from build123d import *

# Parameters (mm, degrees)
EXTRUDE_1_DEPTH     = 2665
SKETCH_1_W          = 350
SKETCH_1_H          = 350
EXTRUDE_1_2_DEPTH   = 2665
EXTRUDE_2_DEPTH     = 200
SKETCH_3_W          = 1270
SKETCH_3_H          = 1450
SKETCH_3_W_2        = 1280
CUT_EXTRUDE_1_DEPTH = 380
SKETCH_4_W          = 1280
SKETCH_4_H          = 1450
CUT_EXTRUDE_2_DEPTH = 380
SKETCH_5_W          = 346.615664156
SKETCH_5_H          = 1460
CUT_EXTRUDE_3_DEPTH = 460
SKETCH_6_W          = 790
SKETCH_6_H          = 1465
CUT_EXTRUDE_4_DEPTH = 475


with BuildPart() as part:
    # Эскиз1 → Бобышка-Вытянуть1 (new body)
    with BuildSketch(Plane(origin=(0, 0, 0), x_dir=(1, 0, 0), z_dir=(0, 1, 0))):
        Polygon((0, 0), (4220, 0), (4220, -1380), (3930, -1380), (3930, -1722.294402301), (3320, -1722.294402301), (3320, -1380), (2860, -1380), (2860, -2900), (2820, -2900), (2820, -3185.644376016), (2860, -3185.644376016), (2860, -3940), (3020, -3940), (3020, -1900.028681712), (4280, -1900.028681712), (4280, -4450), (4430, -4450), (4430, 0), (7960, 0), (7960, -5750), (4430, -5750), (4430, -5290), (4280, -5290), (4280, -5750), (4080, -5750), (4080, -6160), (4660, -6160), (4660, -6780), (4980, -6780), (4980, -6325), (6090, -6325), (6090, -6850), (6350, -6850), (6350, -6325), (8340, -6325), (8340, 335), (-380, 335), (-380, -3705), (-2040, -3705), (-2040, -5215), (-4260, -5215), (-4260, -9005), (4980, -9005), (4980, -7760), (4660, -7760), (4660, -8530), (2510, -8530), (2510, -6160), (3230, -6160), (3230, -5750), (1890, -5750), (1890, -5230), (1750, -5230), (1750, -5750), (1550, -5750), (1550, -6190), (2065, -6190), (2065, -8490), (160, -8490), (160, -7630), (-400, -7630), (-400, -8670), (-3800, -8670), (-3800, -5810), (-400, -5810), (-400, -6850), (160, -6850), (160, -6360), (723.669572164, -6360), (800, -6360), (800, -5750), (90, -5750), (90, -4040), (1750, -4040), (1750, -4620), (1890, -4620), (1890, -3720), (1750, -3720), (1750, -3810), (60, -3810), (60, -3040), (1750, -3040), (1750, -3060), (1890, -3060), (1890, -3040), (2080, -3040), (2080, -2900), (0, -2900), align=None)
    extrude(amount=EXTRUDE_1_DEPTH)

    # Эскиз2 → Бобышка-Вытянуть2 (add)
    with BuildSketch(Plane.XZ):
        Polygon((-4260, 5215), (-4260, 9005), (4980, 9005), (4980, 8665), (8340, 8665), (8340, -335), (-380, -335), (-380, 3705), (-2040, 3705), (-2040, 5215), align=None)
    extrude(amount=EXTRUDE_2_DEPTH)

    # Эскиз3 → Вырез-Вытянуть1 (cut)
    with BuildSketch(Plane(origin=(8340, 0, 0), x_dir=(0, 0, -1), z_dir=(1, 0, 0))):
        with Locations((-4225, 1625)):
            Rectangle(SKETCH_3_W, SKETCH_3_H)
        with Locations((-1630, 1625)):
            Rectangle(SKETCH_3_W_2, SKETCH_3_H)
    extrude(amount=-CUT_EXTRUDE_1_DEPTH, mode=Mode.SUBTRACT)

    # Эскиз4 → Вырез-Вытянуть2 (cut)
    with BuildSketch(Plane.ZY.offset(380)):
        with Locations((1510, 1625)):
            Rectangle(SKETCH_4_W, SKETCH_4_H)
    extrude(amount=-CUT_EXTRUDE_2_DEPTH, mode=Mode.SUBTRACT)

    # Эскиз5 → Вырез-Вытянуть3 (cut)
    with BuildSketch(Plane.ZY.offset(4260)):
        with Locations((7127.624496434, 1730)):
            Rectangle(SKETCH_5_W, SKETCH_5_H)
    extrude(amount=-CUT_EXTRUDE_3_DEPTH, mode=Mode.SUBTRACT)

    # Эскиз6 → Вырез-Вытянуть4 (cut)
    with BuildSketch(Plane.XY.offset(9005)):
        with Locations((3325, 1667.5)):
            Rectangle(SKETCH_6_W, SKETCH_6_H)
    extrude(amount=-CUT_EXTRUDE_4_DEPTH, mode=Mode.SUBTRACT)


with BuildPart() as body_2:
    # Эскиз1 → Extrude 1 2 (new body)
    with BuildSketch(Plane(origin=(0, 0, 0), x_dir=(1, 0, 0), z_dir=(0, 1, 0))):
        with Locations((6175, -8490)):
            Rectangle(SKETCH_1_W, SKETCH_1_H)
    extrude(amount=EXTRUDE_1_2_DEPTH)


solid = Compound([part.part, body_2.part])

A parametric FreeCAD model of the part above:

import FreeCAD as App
import Part
import Sketcher

V = App.Vector
Q = App.Units.Quantity


def add_polygon(sketch, points):
    """Adds a closed chain of lines whose ends are joined by coincident constraints."""
    first, n = sketch.GeometryCount, len(points)
    for a, b in zip(points, points[1:] + points[:1]):
        sketch.addGeometry(Part.LineSegment(App.Vector(*a, 0), App.Vector(*b, 0)), False)
    for i in range(n):
        sketch.addConstraint(Sketcher.Constraint("Coincident", first + i, 2, first + (i + 1) % n, 1))

doc = App.newDocument("Part")
body = doc.addObject("PartDesign::Body", "Body")

sketch1 = body.newObject("Sketcher::SketchObject", "Sketch")
sketch1.AttachmentSupport = (doc.getObject("XZ_Plane"), [""])
sketch1.MapMode = "FlatFace"
add_polygon(sketch1, [(0, 0), (4220, 0), (4220, 1380), (3930, 1380), (3930, 1722), (3320, 1722), (3320, 1380), (2860, 1380), (2860, 2900), (2820, 2900), (2820, 3186), (2860, 3186), (2860, 3940), (3020, 3940), (3020, 1900), (4280, 1900), (4280, 4450), (4430, 4450), (4430, 0), (7960, 0), (7960, 5750), (4430, 5750), (4430, 5290), (4280, 5290), (4280, 5750), (4080, 5750), (4080, 6160), (4660, 6160), (4660, 6780), (4980, 6780), (4980, 6325), (6090, 6325), (6090, 6850), (6350, 6850), (6350, 6325), (8340, 6325), (8340, -335), (-380, -335), (-380, 3705), (-2040, 3705), (-2040, 5215), (-4260, 5215), (-4260, 9005), (4980, 9005), (4980, 7760), (4660, 7760), (4660, 8530), (2510, 8530), (2510, 6160), (3230, 6160), (3230, 5750), (1890, 5750), (1890, 5230), (1750, 5230), (1750, 5750), (1550, 5750), (1550, 6190), (2065, 6190), (2065, 8490), (160, 8490), (160, 7630), (-400, 7630), (-400, 8670), (-3800, 8670), (-3800, 5810), (-400, 5810), (-400, 6850), (160, 6850), (160, 6360), (800, 6360), (800, 5750), (90, 5750), (90, 4040), (1750, 4040), (1750, 4620), (1890, 4620), (1890, 3720), (1750, 3720), (1750, 3810), (60, 3810), (60, 3040), (1750, 3040), (1750, 3060), (1890, 3060), (1890, 3040), (2080, 3040), (2080, 2900), (0, 2900)])
sketch1.addConstraint([
    Sketcher.Constraint("Horizontal", 0),
    Sketcher.Constraint("Vertical", 1),
    Sketcher.Constraint("Horizontal", 2),
    Sketcher.Constraint("Vertical", 3),
    Sketcher.Constraint("Horizontal", 4),
    Sketcher.Constraint("Vertical", 5),
    Sketcher.Constraint("Horizontal", 6),
    Sketcher.Constraint("Vertical", 7),
    Sketcher.Constraint("Horizontal", 8),
    Sketcher.Constraint("Vertical", 9),
    Sketcher.Constraint("Horizontal", 10),
    Sketcher.Constraint("Vertical", 11),
    Sketcher.Constraint("Horizontal", 12),
    Sketcher.Constraint("Vertical", 13),
    Sketcher.Constraint("Horizontal", 14),
    Sketcher.Constraint("Vertical", 15),
    Sketcher.Constraint("Horizontal", 16),
    Sketcher.Constraint("Vertical", 17),
    Sketcher.Constraint("Horizontal", 18),
    Sketcher.Constraint("Vertical", 19),
    Sketcher.Constraint("Horizontal", 20),
    Sketcher.Constraint("Vertical", 21),
    Sketcher.Constraint("Horizontal", 22),
    Sketcher.Constraint("Vertical", 23),
    Sketcher.Constraint("Horizontal", 24),
    Sketcher.Constraint("Vertical", 25),
    Sketcher.Constraint("Horizontal", 26),
    Sketcher.Constraint("Vertical", 27),
    Sketcher.Constraint("Horizontal", 28),
    Sketcher.Constraint("Vertical", 29),
    Sketcher.Constraint("Horizontal", 30),
    Sketcher.Constraint("Vertical", 31),
    Sketcher.Constraint("Horizontal", 32),
    Sketcher.Constraint("Vertical", 33),
    Sketcher.Constraint("Horizontal", 34),
    Sketcher.Constraint("Vertical", 35),
    Sketcher.Constraint("Horizontal", 36),
    Sketcher.Constraint("Vertical", 37),
    Sketcher.Constraint("Horizontal", 38),
    Sketcher.Constraint("Vertical", 39),
    Sketcher.Constraint("Horizontal", 40),
    Sketcher.Constraint("Vertical", 41),
    Sketcher.Constraint("Horizontal", 42),
    Sketcher.Constraint("Vertical", 43),
    Sketcher.Constraint("Horizontal", 44),
    Sketcher.Constraint("Vertical", 45),
    Sketcher.Constraint("Horizontal", 46),
    Sketcher.Constraint("Vertical", 47),
    Sketcher.Constraint("Horizontal", 48),
    Sketcher.Constraint("Vertical", 49),
    Sketcher.Constraint("Horizontal", 50),
    Sketcher.Constraint("Vertical", 51),
    Sketcher.Constraint("Horizontal", 52),
    Sketcher.Constraint("Vertical", 53),
    Sketcher.Constraint("Horizontal", 54),
    Sketcher.Constraint("Vertical", 55),
    Sketcher.Constraint("Horizontal", 56),
    Sketcher.Constraint("Vertical", 57),
    Sketcher.Constraint("Horizontal", 58),
    Sketcher.Constraint("Vertical", 59),
    Sketcher.Constraint("Horizontal", 60),
    Sketcher.Constraint("Vertical", 61),
    Sketcher.Constraint("Horizontal", 62),
    Sketcher.Constraint("Vertical", 63),
    Sketcher.Constraint("Horizontal", 64),
    Sketcher.Constraint("Vertical", 65),
    Sketcher.Constraint("Horizontal", 66),
    Sketcher.Constraint("Vertical", 67),
    Sketcher.Constraint("Horizontal", 68),
    Sketcher.Constraint("Vertical", 69),
    Sketcher.Constraint("Horizontal", 70),
    Sketcher.Constraint("Vertical", 71),
    Sketcher.Constraint("Horizontal", 72),
    Sketcher.Constraint("Vertical", 73),
    Sketcher.Constraint("Horizontal", 74),
    Sketcher.Constraint("Vertical", 75),
    Sketcher.Constraint("Horizontal", 76),
    Sketcher.Constraint("Vertical", 77),
    Sketcher.Constraint("Horizontal", 78),
    Sketcher.Constraint("Vertical", 79),
    Sketcher.Constraint("Horizontal", 80),
    Sketcher.Constraint("Vertical", 81),
    Sketcher.Constraint("Horizontal", 82),
    Sketcher.Constraint("Vertical", 83),
    Sketcher.Constraint("Horizontal", 84),
    Sketcher.Constraint("Vertical", 85),
    Sketcher.Constraint("Horizontal", 86),
    Sketcher.Constraint("Vertical", 87),
    Sketcher.Constraint("Coincident", 87, 2, -1, 1),
    Sketcher.Constraint("PointOnObject", 17, 2, -1),
    Sketcher.Constraint("Horizontal", 2, 2, 5, 2),
    Sketcher.Constraint("Horizontal", 20, 2, 23, 2),
    Sketcher.Constraint("Horizontal", 30, 2, 33, 2),
    Sketcher.Constraint("Horizontal", 26, 2, 47, 2),
    Sketcher.Constraint("Horizontal", 24, 2, 49, 2),
    Sketcher.Constraint("Horizontal", 50, 2, 53, 2),
    Sketcher.Constraint("Horizontal", 32, 2, 65, 2),
    Sketcher.Constraint("Horizontal", 54, 2, 69, 2),
    Sketcher.Constraint("Horizontal", 80, 2, 83, 2),
    Sketcher.Constraint("Horizontal", 8, 2, 85, 2),
    Sketcher.Constraint("Vertical", 7, 2, 10, 2),
    Sketcher.Constraint("Vertical", 17, 2, 20, 2),
    Sketcher.Constraint("Vertical", 15, 2, 22, 2),
    Sketcher.Constraint("Vertical", 29, 2, 42, 2),
    Sketcher.Constraint("Vertical", 27, 2, 44, 2),
    Sketcher.Constraint("Vertical", 61, 2, 64, 2),
    Sketcher.Constraint("Vertical", 59, 2, 66, 2),
    Sketcher.Constraint("Vertical", 53, 2, 72, 2),
    Sketcher.Constraint("Vertical", 51, 2, 74, 2),
    Sketcher.Constraint("Vertical", 73, 2, 76, 2),
    Sketcher.Constraint("Vertical", 77, 2, 80, 2),
    Sketcher.Constraint("Vertical", 75, 2, 82, 2),
    Sketcher.Constraint("Equal", 24, 54),
    Sketcher.Constraint("Equal", 38, 72),
    Sketcher.Constraint("Equal", 6, 21),
    Sketcher.Constraint("Equal", 61, 65),
    Sketcher.Constraint("Equal", 4, 69),
    Sketcher.Constraint("Equal", 26, 73),
    Sketcher.Constraint("Equal", 45, 79),
    Sketcher.Constraint("Equal", 82, 85),
    Sketcher.Constraint("DistanceX", 0, 1, 0, 2, Q("4220 mm")),
    Sketcher.Constraint("DistanceX", 2, 2, 2, 1, Q("290 mm")),
    Sketcher.Constraint("DistanceX", 4, 2, 4, 1, Q("610 mm")),
    Sketcher.Constraint("DistanceX", 6, 2, 6, 1, Q("460 mm")),
    Sketcher.Constraint("DistanceX", 8, 2, 8, 1, Q("40 mm")),
    Sketcher.Constraint("DistanceX", 12, 1, 12, 2, Q("160 mm")),
    Sketcher.Constraint("DistanceX", 14, 1, 14, 2, Q("1260 mm")),
    Sketcher.Constraint("DistanceX", 16, 1, 16, 2, Q("150 mm")),
    Sketcher.Constraint("DistanceX", 18, 1, 18, 2, Q("3530 mm")),
    Sketcher.Constraint("DistanceX", 24, 2, 24, 1, Q("200 mm")),
    Sketcher.Constraint("DistanceX", 26, 1, 26, 2, Q("580 mm")),
    Sketcher.Constraint("DistanceX", 28, 1, 28, 2, Q("320 mm")),
    Sketcher.Constraint("DistanceX", 30, 1, 30, 2, Q("1110 mm")),
    Sketcher.Constraint("DistanceX", 32, 1, 32, 2, Q("260 mm")),
    Sketcher.Constraint("DistanceX", 34, 1, 34, 2, Q("1990 mm")),
    Sketcher.Constraint("DistanceX", 36, 2, 36, 1, Q("8720 mm")),
    Sketcher.Constraint("DistanceX", 38, 2, 38, 1, Q("1660 mm")),
    Sketcher.Constraint("DistanceX", 40, 2, 40, 1, Q("2220 mm")),
    Sketcher.Constraint("DistanceX", 46, 2, 46, 1, Q("2150 mm")),
    Sketcher.Constraint("DistanceX", 48, 1, 48, 2, Q("720 mm")),
    Sketcher.Constraint("DistanceX", 50, 2, 50, 1, Q("1340 mm")),
    Sketcher.Constraint("DistanceX", 52, 2, 52, 1, Q("140 mm")),
    Sketcher.Constraint("DistanceX", 56, 1, 56, 2, Q("515 mm")),
    Sketcher.Constraint("DistanceX", 58, 2, 58, 1, Q("1905 mm")),
    Sketcher.Constraint("DistanceX", 60, 2, 60, 1, Q("560 mm")),
    Sketcher.Constraint("DistanceX", 62, 2, 62, 1, Q("3400 mm")),
    Sketcher.Constraint("DistanceX", 68, 1, 68, 2, Q("640 mm")),
    Sketcher.Constraint("DistanceX", 78, 2, 78, 1, Q("1690 mm")),
    Sketcher.Constraint("DistanceX", 84, 1, 84, 2, Q("190 mm")),
    Sketcher.Constraint("DistanceY", 1, 1, 1, 2, Q("1380 mm")),
    Sketcher.Constraint("DistanceY", 7, 1, 7, 2, Q("1520 mm")),
    Sketcher.Constraint("DistanceY", 17, 2, 17, 1, Q("4450 mm")),
    Sketcher.Constraint("DistanceY", 19, 1, 19, 2, Q("5750 mm")),
    Sketcher.Constraint("DistanceY", 25, 1, 25, 2, Q("410 mm")),
    Sketcher.Constraint("DistanceY", 27, 1, 27, 2, Q("620 mm")),
    Sketcher.Constraint("DistanceY", 29, 2, 29, 1, Q("455 mm")),
    Sketcher.Constraint("DistanceY", 31, 1, 31, 2, Q("525 mm")),
    Sketcher.Constraint("DistanceY", 35, 2, 35, 1, Q("6660 mm")),
    Sketcher.Constraint("DistanceY", 37, 1, 37, 2, Q("4040 mm")),
    Sketcher.Constraint("DistanceY", 39, 1, 39, 2, Q("1510 mm")),
    Sketcher.Constraint("DistanceY", 41, 1, 41, 2, Q("3790 mm")),
    Sketcher.Constraint("DistanceY", 43, 2, 43, 1, Q("1245 mm")),
    Sketcher.Constraint("DistanceY", 45, 1, 45, 2, Q("770 mm")),
    Sketcher.Constraint("DistanceY", 51, 2, 51, 1, Q("520 mm")),
    Sketcher.Constraint("DistanceY", 55, 1, 55, 2, Q("440 mm")),
    Sketcher.Constraint("DistanceY", 57, 1, 57, 2, Q("2300 mm")),
    Sketcher.Constraint("DistanceY", 59, 2, 59, 1, Q("860 mm")),
    Sketcher.Constraint("DistanceY", 61, 1, 61, 2, Q("1040 mm")),
    Sketcher.Constraint("DistanceY", 71, 2, 71, 1, Q("1710 mm")),
    Sketcher.Constraint("DistanceY", 75, 2, 75, 1, Q("900 mm")),
    Sketcher.Constraint("DistanceY", 81, 1, 81, 2, Q("20 mm")),
    Sketcher.Constraint("DistanceY", -1, 1, 11, 2, Q("3940 mm")),
    Sketcher.Constraint("DistanceY", 13, 2, 13, 1, Q("2039.971318 mm")),
    Sketcher.Constraint("DistanceY", 3, 1, 3, 2, Q("342.294402 mm")),
    Sketcher.Constraint("DistanceY", 9, 1, 9, 2, Q("285.644376 mm")),
])
pad1 = body.newObject("PartDesign::Pad", "Pad")
pad1.Profile = sketch1
pad1.Length = 2665
pad1.Reversed = True

sketch2 = body.newObject("Sketcher::SketchObject", "Sketch001")
sketch2.AttachmentSupport = (doc.getObject("XZ_Plane"), [""])
sketch2.MapMode = "FlatFace"
add_polygon(sketch2, [(-4260, 9005), (-4260, 5215), (-2040, 5215), (-2040, 3705), (-380, 3705), (-380, -335), (8340, -335), (8340, 8665), (4980, 8665), (4980, 9005)])
sketch2.addConstraint([
    Sketcher.Constraint("Vertical", 0),
    Sketcher.Constraint("Horizontal", 1),
    Sketcher.Constraint("Vertical", 2),
    Sketcher.Constraint("Horizontal", 3),
    Sketcher.Constraint("Vertical", 4),
    Sketcher.Constraint("Horizontal", 5),
    Sketcher.Constraint("Vertical", 6),
    Sketcher.Constraint("Horizontal", 7),
    Sketcher.Constraint("Vertical", 8),
    Sketcher.Constraint("Horizontal", 9),
    Sketcher.Constraint("DistanceX", 1, 1, 1, 2, Q("2220 mm")),
    Sketcher.Constraint("DistanceX", 3, 1, 3, 2, Q("1660 mm")),
    Sketcher.Constraint("DistanceX", 5, 1, 5, 2, Q("8720 mm")),
    Sketcher.Constraint("DistanceX", 7, 2, 7, 1, Q("3360 mm")),
    Sketcher.Constraint("DistanceY", 0, 2, 0, 1, Q("3790 mm")),
    Sketcher.Constraint("DistanceY", 2, 2, 2, 1, Q("1510 mm")),
    Sketcher.Constraint("DistanceY", 4, 2, 4, 1, Q("4040 mm")),
    Sketcher.Constraint("DistanceY", 6, 1, 6, 2, Q("9000 mm")),
    Sketcher.Constraint("DistanceX", 0, 2, -1, 1, Q("4260 mm")),
    Sketcher.Constraint("DistanceY", -1, 1, 0, 2, Q("5215 mm")),
])
pad2 = body.newObject("PartDesign::Pad", "Pad001")
pad2.Profile = sketch2
pad2.Length = 200

sketch3 = body.newObject("Sketcher::SketchObject", "Sketch002")
sketch3.AttachmentSupport = (doc.getObject("YZ_Plane"), [""])
sketch3.MapMode = "FlatFace"
sketch3.AttachmentOffset = App.Placement(V(0, 0, 8340), App.Rotation())
add_polygon(sketch3, [(2350, 4860), (900, 4860), (900, 3590), (2350, 3590)])
add_polygon(sketch3, [(2350, 2270), (900, 2270), (900, 990), (2350, 990)])
sketch3.addConstraint([
    Sketcher.Constraint("Horizontal", 0),
    Sketcher.Constraint("Vertical", 1),
    Sketcher.Constraint("Horizontal", 2),
    Sketcher.Constraint("Vertical", 3),
    Sketcher.Constraint("Horizontal", 4),
    Sketcher.Constraint("Vertical", 5),
    Sketcher.Constraint("Horizontal", 6),
    Sketcher.Constraint("Vertical", 7),
    Sketcher.Constraint("Vertical", 1, 2, 4, 2),
    Sketcher.Constraint("Vertical", 3, 2, 6, 2),
    Sketcher.Constraint("DistanceX", 0, 2, 0, 1, Q("1450 mm")),
    Sketcher.Constraint("DistanceY", 1, 2, 1, 1, Q("1270 mm")),
    Sketcher.Constraint("DistanceY", 5, 2, 5, 1, Q("1280 mm")),
    Sketcher.Constraint("DistanceX", -1, 1, 0, 2, Q("900 mm")),
    Sketcher.Constraint("DistanceY", -1, 1, 0, 2, Q("4860 mm")),
    Sketcher.Constraint("DistanceY", -1, 1, 4, 2, Q("2270 mm")),
])
pocket1 = body.newObject("PartDesign::Pocket", "Pocket")
pocket1.Profile = sketch3
pocket1.Length = 380

sketch4 = body.newObject("Sketcher::SketchObject", "Sketch003")
sketch4.AttachmentSupport = (doc.getObject("YZ_Plane"), [""])
sketch4.MapMode = "FlatFace"
sketch4.AttachmentOffset = App.Placement(V(0, 0, -380), App.Rotation())
add_polygon(sketch4, [(2350, 870), (900, 870), (900, 2150), (2350, 2150)])
sketch4.addConstraint([
    Sketcher.Constraint("Horizontal", 0),
    Sketcher.Constraint("Vertical", 1),
    Sketcher.Constraint("Horizontal", 2),
    Sketcher.Constraint("Vertical", 3),
    Sketcher.Constraint("DistanceX", 0, 2, 0, 1, Q("1450 mm")),
    Sketcher.Constraint("DistanceY", 1, 1, 1, 2, Q("1280 mm")),
    Sketcher.Constraint("DistanceX", -1, 1, 0, 2, Q("900 mm")),
    Sketcher.Constraint("DistanceY", -1, 1, 0, 2, Q("870 mm")),
])
pocket2 = body.newObject("PartDesign::Pocket", "Pocket001")
pocket2.Profile = sketch4
pocket2.Length = 380
pocket2.Reversed = True

sketch5 = body.newObject("Sketcher::SketchObject", "Sketch004")
sketch5.AttachmentSupport = (doc.getObject("YZ_Plane"), [""])
sketch5.MapMode = "FlatFace"
sketch5.AttachmentOffset = App.Placement(V(0, 0, -4260), App.Rotation())
add_polygon(sketch5, [(2460, 6954), (1000, 6954), (1000, 7301), (2460, 7301)])
sketch5.addConstraint([
    Sketcher.Constraint("Horizontal", 0),
    Sketcher.Constraint("Vertical", 1),
    Sketcher.Constraint("Horizontal", 2),
    Sketcher.Constraint("Vertical", 3),
    Sketcher.Constraint("DistanceX", 0, 2, 0, 1, Q("1460 mm")),
    Sketcher.Constraint("DistanceX", -1, 1, 0, 2, Q("1000 mm")),
    Sketcher.Constraint("DistanceY", 1, 1, 1, 2, Q("346.615664 mm")),
    Sketcher.Constraint("DistanceY", -1, 1, 1, 2, Q("7300.932329 mm")),
])
pocket3 = body.newObject("PartDesign::Pocket", "Pocket002")
pocket3.Profile = sketch5
pocket3.Length = 460
pocket3.Reversed = True

sketch6 = body.newObject("Sketcher::SketchObject", "Sketch005")
sketch6.AttachmentSupport = (doc.getObject("XY_Plane"), [""])
sketch6.MapMode = "FlatFace"
sketch6.AttachmentOffset = App.Placement(V(0, 0, 9005), App.Rotation())
add_polygon(sketch6, [(2930, 2400), (2930, 935), (3720, 935), (3720, 2400)])
sketch6.addConstraint([
    Sketcher.Constraint("Vertical", 0),
    Sketcher.Constraint("Horizontal", 1),
    Sketcher.Constraint("Vertical", 2),
    Sketcher.Constraint("Horizontal", 3),
    Sketcher.Constraint("DistanceX", 1, 1, 1, 2, Q("790 mm")),
    Sketcher.Constraint("DistanceY", 0, 2, 0, 1, Q("1465 mm")),
    Sketcher.Constraint("DistanceX", -1, 1, 0, 2, Q("2930 mm")),
    Sketcher.Constraint("DistanceY", -1, 1, 0, 2, Q("935 mm")),
])
pocket4 = body.newObject("PartDesign::Pocket", "Pocket003")
pocket4.Profile = sketch6
pocket4.Length = 475
body2 = doc.addObject("PartDesign::Body", "Body001")

sketch7 = body2.newObject("Sketcher::SketchObject", "Sketch006")
sketch7.AttachmentSupport = (doc.getObject("XZ_Plane001"), [""])
sketch7.MapMode = "FlatFace"
add_polygon(sketch7, [(6000, 8315), (6000, 8665), (6350, 8665), (6350, 8315)])
sketch7.addConstraint([
    Sketcher.Constraint("Vertical", 0),
    Sketcher.Constraint("Horizontal", 1),
    Sketcher.Constraint("Vertical", 2),
    Sketcher.Constraint("Horizontal", 3),
    Sketcher.Constraint("Equal", 3, 0),
    Sketcher.Constraint("DistanceX", 1, 1, 1, 2, Q("350 mm")),
    Sketcher.Constraint("DistanceX", -1, 1, 0, 2, Q("6000 mm")),
    Sketcher.Constraint("DistanceY", -1, 1, 0, 2, Q("8665 mm")),
])
pad3 = body2.newObject("PartDesign::Pad", "Pad002")
pad3.Profile = sketch7
pad3.Length = 2665
pad3.Reversed = True

doc.recompute()
